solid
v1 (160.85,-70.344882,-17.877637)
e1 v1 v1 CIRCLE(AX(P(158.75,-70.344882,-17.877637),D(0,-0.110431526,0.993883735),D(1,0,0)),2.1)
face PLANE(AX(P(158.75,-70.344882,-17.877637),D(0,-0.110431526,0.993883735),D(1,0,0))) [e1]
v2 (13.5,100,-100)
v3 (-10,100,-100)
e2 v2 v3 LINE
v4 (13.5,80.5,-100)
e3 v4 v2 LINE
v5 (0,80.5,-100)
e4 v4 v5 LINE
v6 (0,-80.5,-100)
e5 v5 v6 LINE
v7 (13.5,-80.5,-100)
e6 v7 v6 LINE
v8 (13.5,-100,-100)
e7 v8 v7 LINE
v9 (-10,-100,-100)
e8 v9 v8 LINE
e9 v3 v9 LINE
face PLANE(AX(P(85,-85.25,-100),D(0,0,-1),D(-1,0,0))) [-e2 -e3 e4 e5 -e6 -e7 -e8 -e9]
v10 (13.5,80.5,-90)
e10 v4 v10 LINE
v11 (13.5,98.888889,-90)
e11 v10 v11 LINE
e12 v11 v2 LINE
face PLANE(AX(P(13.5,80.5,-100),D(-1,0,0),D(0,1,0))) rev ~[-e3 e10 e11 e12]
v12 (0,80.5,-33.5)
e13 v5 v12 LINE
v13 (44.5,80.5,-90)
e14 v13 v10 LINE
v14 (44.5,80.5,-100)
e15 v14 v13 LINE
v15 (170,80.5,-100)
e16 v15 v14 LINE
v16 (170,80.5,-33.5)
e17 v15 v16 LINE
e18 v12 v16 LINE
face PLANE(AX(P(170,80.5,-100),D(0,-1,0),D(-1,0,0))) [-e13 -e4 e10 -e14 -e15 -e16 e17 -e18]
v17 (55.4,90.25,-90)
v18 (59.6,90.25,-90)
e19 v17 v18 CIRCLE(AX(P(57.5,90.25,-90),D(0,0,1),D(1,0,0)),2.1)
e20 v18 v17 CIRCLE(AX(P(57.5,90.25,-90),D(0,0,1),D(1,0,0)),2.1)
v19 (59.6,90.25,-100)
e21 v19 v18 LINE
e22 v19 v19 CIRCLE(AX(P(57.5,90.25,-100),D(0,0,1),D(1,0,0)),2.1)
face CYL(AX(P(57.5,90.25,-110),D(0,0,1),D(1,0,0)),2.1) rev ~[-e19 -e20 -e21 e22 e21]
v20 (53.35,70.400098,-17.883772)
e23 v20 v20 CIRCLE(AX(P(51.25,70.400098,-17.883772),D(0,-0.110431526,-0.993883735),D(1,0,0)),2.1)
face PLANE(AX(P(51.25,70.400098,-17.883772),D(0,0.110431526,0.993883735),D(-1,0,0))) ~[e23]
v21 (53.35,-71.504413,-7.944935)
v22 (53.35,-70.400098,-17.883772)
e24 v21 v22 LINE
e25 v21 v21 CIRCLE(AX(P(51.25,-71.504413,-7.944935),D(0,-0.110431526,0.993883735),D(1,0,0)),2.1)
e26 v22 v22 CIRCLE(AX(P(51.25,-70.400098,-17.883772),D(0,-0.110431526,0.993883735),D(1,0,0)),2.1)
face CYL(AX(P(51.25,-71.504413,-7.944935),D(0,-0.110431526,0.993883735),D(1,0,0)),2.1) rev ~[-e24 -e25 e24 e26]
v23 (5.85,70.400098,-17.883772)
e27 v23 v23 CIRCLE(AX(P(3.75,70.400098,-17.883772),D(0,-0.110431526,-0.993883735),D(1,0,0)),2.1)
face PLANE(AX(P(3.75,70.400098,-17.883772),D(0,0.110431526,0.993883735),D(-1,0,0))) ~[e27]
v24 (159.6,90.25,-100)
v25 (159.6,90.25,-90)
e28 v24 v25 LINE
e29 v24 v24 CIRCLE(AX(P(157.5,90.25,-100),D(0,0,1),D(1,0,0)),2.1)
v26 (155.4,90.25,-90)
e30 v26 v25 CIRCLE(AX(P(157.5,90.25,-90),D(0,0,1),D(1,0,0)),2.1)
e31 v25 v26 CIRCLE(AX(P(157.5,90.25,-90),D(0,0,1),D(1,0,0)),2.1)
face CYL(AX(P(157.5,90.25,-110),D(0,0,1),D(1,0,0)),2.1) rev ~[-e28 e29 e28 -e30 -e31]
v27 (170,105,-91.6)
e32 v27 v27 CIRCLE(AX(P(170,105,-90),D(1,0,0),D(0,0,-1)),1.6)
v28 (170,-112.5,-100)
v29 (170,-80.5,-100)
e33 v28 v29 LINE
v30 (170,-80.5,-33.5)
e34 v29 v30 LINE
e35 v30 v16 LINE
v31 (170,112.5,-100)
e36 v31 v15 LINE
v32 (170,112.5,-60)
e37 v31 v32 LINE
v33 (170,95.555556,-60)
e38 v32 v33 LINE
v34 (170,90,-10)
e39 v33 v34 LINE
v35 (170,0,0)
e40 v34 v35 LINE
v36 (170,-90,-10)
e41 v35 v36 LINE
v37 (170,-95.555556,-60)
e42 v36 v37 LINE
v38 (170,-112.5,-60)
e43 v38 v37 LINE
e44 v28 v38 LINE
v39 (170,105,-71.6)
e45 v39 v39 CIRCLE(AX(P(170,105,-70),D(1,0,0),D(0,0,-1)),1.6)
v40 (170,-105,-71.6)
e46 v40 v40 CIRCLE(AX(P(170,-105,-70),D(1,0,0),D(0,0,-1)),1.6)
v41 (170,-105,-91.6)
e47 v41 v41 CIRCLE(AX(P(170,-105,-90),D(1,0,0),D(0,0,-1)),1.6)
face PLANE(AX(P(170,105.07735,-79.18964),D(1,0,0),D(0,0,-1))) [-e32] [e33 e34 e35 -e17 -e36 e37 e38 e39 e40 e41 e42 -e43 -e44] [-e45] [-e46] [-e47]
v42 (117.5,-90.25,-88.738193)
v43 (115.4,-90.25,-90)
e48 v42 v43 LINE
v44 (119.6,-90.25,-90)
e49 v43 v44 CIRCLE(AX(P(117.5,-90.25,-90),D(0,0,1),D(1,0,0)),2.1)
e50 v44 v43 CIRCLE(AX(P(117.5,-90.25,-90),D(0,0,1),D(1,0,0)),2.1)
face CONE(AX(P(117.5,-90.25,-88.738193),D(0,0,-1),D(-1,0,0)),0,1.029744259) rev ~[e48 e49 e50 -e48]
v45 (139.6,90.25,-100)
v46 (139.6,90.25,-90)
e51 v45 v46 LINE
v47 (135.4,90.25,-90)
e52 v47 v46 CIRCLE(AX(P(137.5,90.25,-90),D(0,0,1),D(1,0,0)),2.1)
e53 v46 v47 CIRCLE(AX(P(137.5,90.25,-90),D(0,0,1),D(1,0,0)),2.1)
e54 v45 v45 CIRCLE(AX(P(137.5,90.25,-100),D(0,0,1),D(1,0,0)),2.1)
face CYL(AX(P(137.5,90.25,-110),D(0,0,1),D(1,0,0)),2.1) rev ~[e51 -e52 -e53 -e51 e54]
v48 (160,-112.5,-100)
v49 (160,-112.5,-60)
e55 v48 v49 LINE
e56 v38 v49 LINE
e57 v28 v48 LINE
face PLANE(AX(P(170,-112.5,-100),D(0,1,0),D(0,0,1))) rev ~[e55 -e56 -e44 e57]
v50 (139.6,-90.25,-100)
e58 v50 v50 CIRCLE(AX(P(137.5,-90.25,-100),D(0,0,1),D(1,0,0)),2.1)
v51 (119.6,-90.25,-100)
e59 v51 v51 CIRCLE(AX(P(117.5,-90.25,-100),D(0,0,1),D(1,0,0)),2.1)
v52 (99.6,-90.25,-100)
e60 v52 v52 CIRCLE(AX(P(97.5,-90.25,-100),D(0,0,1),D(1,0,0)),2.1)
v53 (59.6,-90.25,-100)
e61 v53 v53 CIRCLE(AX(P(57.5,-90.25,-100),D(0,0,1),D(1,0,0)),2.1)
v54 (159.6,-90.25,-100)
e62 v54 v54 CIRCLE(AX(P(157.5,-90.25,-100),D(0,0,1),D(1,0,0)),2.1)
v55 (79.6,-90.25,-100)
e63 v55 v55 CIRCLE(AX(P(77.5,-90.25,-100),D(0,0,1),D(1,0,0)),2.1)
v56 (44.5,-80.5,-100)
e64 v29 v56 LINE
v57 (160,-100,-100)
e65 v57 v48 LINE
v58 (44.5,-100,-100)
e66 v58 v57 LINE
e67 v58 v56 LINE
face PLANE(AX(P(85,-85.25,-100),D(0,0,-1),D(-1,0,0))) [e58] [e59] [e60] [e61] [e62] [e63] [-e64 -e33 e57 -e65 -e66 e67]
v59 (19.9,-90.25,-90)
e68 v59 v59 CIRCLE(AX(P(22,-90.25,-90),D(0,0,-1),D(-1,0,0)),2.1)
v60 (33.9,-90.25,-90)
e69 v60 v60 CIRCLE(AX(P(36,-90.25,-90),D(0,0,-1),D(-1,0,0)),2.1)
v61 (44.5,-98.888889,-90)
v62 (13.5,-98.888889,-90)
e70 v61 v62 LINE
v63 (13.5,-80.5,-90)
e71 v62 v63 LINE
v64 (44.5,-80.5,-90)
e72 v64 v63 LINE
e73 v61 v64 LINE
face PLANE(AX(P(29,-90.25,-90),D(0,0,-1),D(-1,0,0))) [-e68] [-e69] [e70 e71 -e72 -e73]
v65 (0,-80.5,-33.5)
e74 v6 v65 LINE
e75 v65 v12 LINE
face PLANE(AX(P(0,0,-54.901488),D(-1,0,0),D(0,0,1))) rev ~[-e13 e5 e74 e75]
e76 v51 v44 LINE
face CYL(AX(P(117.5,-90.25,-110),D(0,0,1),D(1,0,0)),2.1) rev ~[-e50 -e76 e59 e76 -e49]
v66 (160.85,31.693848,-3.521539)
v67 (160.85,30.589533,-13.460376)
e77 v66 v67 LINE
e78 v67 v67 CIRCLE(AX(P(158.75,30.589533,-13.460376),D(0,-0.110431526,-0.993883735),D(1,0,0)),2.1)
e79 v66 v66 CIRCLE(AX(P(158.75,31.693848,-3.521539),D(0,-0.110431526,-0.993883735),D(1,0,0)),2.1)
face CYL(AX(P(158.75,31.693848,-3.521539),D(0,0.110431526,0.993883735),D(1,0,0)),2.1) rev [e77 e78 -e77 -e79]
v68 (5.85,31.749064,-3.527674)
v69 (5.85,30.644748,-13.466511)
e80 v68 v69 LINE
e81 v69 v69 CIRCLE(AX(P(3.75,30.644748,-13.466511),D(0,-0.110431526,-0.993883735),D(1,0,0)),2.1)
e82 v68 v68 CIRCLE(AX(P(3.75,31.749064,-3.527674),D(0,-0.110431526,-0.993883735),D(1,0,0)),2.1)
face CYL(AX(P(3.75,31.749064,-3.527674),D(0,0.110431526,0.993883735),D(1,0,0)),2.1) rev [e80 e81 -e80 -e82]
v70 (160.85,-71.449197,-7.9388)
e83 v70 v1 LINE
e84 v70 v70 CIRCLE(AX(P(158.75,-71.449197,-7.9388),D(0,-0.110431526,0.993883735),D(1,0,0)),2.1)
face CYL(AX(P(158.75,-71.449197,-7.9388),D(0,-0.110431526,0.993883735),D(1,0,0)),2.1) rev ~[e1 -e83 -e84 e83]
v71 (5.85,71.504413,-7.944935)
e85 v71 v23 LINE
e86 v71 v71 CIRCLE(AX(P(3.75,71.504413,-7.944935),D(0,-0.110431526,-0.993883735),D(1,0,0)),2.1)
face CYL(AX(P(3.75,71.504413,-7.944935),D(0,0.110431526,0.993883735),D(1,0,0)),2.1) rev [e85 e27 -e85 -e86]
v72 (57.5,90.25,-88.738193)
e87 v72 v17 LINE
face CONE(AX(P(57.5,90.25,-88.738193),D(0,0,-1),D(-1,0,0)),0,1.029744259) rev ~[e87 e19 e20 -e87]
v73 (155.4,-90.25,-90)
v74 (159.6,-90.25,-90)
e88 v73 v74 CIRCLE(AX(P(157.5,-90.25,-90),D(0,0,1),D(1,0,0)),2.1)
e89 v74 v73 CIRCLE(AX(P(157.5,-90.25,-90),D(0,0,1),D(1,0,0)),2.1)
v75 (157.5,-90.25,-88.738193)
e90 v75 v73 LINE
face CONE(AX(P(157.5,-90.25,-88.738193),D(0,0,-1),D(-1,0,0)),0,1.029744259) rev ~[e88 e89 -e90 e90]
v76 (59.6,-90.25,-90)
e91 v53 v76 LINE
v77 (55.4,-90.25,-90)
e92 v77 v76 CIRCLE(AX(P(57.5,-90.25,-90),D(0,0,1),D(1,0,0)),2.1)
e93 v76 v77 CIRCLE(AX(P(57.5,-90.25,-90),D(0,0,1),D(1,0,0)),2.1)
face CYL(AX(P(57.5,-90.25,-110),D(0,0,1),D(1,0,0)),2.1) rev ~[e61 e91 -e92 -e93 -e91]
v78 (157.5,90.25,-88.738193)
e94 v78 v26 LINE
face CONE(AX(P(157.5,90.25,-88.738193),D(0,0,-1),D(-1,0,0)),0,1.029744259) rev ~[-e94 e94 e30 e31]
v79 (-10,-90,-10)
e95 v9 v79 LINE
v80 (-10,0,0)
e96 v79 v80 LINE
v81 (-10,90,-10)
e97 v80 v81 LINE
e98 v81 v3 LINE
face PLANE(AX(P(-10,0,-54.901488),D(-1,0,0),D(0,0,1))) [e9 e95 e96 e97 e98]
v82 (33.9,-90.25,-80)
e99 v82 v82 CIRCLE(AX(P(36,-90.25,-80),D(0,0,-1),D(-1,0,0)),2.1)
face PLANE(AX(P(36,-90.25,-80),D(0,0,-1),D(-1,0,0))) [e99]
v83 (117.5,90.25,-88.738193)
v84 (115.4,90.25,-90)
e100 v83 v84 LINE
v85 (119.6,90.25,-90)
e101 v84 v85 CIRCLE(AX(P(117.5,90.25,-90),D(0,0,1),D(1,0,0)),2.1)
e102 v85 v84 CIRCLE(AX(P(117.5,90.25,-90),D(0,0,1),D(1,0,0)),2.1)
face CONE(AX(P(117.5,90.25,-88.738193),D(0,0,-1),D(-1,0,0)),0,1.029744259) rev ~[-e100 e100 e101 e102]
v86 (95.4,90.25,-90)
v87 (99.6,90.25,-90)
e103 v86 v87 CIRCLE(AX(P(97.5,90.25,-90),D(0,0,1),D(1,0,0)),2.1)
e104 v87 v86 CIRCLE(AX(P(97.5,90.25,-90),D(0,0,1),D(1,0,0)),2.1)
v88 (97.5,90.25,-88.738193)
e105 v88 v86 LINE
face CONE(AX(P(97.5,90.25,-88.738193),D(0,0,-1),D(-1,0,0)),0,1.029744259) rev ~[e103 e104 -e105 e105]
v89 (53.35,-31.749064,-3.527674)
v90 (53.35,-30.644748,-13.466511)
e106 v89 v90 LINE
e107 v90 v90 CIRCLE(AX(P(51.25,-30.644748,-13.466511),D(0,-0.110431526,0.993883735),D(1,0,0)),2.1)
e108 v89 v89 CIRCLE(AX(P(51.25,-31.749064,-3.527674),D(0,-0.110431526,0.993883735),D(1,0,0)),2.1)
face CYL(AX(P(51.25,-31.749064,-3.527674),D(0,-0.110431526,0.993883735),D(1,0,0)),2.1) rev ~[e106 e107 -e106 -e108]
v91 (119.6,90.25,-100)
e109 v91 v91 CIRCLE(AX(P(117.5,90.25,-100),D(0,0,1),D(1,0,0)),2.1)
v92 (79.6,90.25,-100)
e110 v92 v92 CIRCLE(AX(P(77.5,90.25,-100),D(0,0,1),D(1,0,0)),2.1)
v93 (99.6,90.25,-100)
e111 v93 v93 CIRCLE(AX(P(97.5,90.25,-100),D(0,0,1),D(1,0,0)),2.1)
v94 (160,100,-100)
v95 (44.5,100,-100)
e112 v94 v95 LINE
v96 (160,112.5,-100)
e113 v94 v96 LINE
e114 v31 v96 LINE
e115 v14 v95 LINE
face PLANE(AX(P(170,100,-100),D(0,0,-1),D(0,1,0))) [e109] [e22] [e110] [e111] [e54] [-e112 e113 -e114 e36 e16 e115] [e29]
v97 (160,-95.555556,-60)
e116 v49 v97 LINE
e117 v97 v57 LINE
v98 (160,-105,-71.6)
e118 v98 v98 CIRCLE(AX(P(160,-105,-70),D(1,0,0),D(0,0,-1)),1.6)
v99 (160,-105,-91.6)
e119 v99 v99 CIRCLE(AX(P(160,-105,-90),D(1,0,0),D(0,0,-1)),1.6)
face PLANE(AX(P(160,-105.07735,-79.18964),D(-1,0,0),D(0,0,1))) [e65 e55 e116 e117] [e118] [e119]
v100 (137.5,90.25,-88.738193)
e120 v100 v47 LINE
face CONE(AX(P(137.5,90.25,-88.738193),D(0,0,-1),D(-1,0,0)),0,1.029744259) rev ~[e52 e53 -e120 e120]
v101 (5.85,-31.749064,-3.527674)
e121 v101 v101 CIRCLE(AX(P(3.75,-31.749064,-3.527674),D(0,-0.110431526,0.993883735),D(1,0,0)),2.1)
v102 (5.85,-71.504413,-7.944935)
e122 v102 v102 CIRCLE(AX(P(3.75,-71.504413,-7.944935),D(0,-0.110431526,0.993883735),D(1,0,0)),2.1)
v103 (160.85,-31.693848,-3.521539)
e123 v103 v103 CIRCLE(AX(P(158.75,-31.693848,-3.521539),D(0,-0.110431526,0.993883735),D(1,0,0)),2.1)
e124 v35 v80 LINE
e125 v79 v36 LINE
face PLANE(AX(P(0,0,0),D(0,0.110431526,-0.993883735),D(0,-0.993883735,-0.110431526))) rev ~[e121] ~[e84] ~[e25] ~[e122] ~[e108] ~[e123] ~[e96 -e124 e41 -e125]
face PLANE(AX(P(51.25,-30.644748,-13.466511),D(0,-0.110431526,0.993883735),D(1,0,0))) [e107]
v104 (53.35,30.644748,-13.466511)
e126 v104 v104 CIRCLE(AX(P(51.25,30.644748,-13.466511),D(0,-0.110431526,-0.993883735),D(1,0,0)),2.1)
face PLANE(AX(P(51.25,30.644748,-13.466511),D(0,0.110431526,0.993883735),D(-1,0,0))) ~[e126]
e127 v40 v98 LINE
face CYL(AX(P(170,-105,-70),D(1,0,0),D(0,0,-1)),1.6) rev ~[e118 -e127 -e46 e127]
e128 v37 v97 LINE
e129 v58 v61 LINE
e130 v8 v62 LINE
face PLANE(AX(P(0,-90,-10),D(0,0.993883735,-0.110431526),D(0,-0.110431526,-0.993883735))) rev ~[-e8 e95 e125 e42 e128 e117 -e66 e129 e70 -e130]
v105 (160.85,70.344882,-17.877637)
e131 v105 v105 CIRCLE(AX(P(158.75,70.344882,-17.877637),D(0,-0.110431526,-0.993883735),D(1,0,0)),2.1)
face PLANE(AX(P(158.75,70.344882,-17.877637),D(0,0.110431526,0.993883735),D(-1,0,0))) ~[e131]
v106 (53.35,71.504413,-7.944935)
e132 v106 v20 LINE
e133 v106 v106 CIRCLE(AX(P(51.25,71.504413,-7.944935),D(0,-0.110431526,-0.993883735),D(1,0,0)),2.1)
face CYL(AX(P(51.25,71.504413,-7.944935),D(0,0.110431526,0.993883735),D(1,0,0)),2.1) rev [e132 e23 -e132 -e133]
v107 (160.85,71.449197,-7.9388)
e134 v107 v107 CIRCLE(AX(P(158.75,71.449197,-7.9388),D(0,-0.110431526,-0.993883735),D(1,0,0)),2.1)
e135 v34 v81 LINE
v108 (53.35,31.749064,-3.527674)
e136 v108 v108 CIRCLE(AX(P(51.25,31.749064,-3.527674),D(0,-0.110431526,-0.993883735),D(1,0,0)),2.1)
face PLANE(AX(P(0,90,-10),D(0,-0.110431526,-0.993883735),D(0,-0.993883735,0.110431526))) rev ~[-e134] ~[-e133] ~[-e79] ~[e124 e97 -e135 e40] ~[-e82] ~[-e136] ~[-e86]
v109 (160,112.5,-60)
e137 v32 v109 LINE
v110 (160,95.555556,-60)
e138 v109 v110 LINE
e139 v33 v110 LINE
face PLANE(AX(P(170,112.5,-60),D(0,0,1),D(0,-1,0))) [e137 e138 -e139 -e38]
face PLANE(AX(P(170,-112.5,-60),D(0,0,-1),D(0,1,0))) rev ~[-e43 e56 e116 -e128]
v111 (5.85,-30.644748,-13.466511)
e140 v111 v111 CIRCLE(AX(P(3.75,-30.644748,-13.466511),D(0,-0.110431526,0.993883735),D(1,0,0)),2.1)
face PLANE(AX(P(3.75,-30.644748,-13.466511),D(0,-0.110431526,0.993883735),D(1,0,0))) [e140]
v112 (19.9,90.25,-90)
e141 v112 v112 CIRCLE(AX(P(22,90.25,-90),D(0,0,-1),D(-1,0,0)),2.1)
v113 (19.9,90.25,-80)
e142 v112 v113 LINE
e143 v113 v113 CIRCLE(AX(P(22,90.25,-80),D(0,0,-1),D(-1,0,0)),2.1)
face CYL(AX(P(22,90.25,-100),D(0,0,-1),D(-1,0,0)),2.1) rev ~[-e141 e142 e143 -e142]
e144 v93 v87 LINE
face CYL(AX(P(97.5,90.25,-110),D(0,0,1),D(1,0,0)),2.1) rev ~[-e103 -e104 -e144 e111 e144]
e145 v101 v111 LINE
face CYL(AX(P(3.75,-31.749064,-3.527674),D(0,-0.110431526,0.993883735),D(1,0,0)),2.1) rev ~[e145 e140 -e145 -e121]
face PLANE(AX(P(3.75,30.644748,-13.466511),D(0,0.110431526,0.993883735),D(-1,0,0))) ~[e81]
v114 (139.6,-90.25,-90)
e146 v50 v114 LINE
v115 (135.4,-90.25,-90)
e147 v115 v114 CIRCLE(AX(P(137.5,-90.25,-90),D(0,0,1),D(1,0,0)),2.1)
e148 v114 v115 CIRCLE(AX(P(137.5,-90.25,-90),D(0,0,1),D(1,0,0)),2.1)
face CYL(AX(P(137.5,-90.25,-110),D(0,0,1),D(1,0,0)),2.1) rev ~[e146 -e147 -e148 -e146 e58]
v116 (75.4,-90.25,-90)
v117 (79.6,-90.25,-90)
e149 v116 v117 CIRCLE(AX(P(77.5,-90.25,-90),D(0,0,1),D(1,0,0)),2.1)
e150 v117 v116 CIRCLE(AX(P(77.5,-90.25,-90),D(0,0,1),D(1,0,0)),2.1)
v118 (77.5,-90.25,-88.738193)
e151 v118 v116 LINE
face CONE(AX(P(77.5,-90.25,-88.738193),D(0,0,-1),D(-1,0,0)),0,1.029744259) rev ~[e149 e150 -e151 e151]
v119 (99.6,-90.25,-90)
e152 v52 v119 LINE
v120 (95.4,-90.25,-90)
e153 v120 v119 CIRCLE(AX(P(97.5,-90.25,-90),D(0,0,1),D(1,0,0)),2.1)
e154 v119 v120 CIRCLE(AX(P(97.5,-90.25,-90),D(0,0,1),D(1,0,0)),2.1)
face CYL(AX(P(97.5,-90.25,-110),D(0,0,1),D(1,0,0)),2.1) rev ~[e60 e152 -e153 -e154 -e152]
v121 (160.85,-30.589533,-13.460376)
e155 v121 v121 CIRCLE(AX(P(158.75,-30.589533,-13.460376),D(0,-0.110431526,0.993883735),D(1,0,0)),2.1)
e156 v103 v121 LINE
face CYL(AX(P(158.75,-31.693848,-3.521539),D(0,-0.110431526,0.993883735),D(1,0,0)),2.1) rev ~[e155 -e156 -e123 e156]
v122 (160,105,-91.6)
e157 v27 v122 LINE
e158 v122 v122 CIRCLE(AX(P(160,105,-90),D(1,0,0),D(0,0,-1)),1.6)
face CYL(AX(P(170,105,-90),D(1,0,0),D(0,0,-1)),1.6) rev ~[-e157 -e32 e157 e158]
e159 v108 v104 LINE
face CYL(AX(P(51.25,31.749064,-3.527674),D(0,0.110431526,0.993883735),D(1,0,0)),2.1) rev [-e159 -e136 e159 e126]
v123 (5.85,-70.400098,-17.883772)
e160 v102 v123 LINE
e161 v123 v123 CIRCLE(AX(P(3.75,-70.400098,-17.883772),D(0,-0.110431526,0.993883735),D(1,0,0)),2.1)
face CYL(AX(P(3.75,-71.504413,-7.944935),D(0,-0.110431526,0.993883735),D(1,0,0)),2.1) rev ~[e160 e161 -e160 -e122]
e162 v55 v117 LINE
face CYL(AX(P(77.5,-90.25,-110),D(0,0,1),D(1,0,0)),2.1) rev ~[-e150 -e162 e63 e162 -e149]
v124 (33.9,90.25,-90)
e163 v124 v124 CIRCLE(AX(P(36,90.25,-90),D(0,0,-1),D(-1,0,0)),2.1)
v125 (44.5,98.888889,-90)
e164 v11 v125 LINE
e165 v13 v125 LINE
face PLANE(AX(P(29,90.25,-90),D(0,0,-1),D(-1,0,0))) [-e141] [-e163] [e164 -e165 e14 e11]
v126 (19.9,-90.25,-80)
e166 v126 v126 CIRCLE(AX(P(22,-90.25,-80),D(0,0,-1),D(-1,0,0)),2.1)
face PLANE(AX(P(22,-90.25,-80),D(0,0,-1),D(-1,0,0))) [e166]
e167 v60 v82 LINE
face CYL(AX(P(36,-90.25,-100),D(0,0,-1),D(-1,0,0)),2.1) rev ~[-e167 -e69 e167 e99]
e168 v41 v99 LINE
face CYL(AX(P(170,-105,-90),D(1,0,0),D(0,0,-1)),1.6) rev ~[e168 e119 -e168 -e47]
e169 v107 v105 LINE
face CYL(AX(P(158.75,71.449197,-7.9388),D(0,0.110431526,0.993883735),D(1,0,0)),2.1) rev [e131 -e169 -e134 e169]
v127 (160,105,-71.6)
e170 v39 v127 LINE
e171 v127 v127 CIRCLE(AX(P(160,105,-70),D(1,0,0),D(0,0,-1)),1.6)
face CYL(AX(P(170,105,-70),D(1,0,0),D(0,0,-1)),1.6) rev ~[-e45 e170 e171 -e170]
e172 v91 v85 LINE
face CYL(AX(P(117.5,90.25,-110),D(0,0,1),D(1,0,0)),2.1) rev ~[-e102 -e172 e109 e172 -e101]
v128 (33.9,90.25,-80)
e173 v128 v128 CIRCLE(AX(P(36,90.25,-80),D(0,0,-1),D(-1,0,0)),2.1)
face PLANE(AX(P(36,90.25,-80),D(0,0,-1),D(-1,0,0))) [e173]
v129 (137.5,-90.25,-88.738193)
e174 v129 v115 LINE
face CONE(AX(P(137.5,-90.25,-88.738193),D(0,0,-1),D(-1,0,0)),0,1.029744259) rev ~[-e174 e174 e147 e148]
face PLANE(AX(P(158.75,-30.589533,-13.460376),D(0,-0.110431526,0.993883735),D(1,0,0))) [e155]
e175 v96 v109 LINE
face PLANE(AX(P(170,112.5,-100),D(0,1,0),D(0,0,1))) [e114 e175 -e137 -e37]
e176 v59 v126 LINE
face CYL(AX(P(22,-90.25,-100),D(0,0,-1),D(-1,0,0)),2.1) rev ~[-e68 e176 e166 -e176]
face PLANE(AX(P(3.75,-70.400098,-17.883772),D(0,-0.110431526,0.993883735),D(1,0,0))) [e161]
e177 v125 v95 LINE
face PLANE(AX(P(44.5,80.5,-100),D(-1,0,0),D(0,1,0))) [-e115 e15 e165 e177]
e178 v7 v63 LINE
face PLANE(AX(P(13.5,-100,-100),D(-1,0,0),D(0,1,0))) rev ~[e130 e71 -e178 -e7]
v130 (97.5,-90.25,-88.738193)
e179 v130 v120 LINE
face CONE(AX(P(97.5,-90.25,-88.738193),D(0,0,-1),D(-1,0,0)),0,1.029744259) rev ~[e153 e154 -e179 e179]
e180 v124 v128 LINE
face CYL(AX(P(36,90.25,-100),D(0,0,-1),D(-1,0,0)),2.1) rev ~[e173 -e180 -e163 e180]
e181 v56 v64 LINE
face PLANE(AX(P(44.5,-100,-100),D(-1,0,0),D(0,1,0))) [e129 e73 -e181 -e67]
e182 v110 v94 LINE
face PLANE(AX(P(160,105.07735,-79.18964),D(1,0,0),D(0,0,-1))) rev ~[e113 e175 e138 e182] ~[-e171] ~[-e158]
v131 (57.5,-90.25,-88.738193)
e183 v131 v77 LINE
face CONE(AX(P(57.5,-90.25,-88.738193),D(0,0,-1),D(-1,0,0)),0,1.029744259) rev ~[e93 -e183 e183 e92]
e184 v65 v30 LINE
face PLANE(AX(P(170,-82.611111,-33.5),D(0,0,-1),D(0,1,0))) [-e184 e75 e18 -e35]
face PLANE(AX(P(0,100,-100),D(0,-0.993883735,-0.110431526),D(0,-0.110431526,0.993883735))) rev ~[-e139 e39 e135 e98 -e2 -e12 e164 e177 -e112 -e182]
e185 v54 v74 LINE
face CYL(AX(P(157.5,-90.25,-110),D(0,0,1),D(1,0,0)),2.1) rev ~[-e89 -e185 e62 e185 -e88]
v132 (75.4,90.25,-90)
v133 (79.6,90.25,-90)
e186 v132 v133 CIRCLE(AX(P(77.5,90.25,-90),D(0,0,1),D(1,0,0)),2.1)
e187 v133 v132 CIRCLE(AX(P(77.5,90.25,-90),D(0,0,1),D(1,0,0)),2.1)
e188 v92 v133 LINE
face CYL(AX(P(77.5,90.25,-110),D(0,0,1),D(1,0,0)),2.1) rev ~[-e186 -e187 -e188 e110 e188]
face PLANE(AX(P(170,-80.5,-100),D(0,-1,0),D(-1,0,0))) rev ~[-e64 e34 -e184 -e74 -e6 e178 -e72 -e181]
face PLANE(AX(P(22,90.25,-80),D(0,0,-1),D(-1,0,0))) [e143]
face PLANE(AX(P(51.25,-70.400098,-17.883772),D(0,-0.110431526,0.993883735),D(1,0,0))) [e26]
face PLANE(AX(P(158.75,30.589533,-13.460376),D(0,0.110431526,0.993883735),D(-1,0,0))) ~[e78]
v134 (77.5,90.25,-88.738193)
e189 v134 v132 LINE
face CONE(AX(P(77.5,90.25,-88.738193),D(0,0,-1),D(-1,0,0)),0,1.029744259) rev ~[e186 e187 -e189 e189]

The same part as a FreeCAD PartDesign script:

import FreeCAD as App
import Part
import Sketcher

doc = App.newDocument("Part")
params = doc.addObject("Spreadsheet::Sheet", "Params")
for row, (alias, value) in enumerate([
    ("sketch1_width", "200 mm"),
    ("pad1_length", "10 mm"),
    ("sketch2_width", "10 mm"),
    ("pad2_length", "170 mm"),
    ("sketch4_width", "170 mm"),
    ("sketch4_height", "9.5 mm"),
    ("pad4_length", "66.5 mm"),
    ("sketch5_width", "170 mm"),
    ("sketch5_height", "9.5 mm"),
    ("pad5_length", "66.5 mm"),
    ("sketch6_width", "31 mm"),
    ("sketch6_height", "19.5 mm"),
    ("pocket1_length", "10 mm"),
    ("sketch7_diameter", "4.2 mm"),
    ("pocket2_length", "20 mm"),
    ("sketch8_diameter", "4.2 mm"),
    ("hole_diameter", "4.2 mm"),
    ("hole_depth", "10 mm"),
    ("sketch9_diameter", "4.2 mm"),
    ("pocket3_length", "10 mm"),
    ("sketch10_height", "40 mm"),
    ("sketch10_width", "12.5 mm"),
    ("pad6_length", "10 mm"),
    ("sketch11_diameter", "3.2 mm"),
    ("sketch12_diameter", "3.2 mm"),
    ("sketch13_diameter", "3.2 mm"),
    ("sketch14_diameter", "3.2 mm"),
], start=1):
    params.set(f"A{row}", alias)
    params.set(f"B{row}", "=" + value)
    params.setAlias(f"B{row}", alias)

body = doc.addObject("PartDesign::Body", "Body")

sketch1 = body.newObject("Sketcher::SketchObject", "Sketch")
sketch1.AttachmentSupport = (doc.getObject("YZ_Plane"), [""])
sketch1.MapMode = "FlatFace"
sketch1.addGeometry([
    Part.LineSegment(App.Vector(90, -10, 0), App.Vector(0, 0, 0)),
    Part.LineSegment(App.Vector(0, 0, 0), App.Vector(-90, -10, 0)),
    Part.LineSegment(App.Vector(-90, -10, 0), App.Vector(-100, -100, 0)),
    Part.LineSegment(App.Vector(-100, -100, 0), App.Vector(100, -100, 0)),
    Part.LineSegment(App.Vector(100, -100, 0), App.Vector(90, -10, 0)),
], False)
sketch1.addConstraint([
    Sketcher.Constraint("Coincident", 0, 2, 1, 1),
    Sketcher.Constraint("Coincident", 1, 2, 2, 1),
    Sketcher.Constraint("Coincident", 2, 2, 3, 1),
    Sketcher.Constraint("Coincident", 3, 2, 4, 1),
    Sketcher.Constraint("Coincident", 4, 2, 0, 1),
    Sketcher.Constraint("Horizontal", 3),
    Sketcher.Constraint("Coincident", 0, 2, -1, 1),
    Sketcher.Constraint("Symmetric", 1, 2, 4, 2, -2),
    Sketcher.Constraint("Perpendicular", 0, 2),
    Sketcher.Constraint("Perpendicular", 1, 4),
    Sketcher.Constraint("Equal", 1, 2),
    Sketcher.Constraint("DistanceX", 3, 1, 3, 2, 200.0),
    Sketcher.Constraint("DistanceX", 1, 2, -1, 1, 90.0),
])
sketch1.setExpression("Constraints[11]", "Params.sketch1_width")
pad1 = body.newObject("PartDesign::Pad", "Pad")
pad1.Profile = sketch1
pad1.setExpression("Length", "Params.pad1_length")
pad1.Reversed = True

sketch2 = body.newObject("Sketcher::SketchObject", "Sketch001")
sketch2.AttachmentSupport = (doc.getObject("YZ_Plane"), [""])
sketch2.MapMode = "FlatFace"
sketch2.addGeometry([
    Part.LineSegment(App.Vector(0, 0, 0), App.Vector(-90, -10, 0)),
    Part.LineSegment(App.Vector(-90, -10, 0), App.Vector(-100, -100, 0)),
    Part.LineSegment(App.Vector(-100, -100, 0), App.Vector(-90, -100, 0)),
    Part.LineSegment(App.Vector(-90, -100, 0), App.Vector(-81, -19, 0)),
    Part.LineSegment(App.Vector(-81, -19, 0), App.Vector(0, -10, 0)),
    Part.LineSegment(App.Vector(0, -10, 0), App.Vector(81, -19, 0)),
    Part.LineSegment(App.Vector(81, -19, 0), App.Vector(90, -100, 0)),
    Part.LineSegment(App.Vector(90, -100, 0), App.Vector(100, -100, 0)),
    Part.LineSegment(App.Vector(100, -100, 0), App.Vector(90, -10, 0)),
    Part.LineSegment(App.Vector(90, -10, 0), App.Vector(0, 0, 0)),
], False)
sketch2.addConstraint([
    Sketcher.Constraint("Coincident", 0, 2, 1, 1),
    Sketcher.Constraint("Coincident", 1, 2, 2, 1),
    Sketcher.Constraint("Coincident", 2, 2, 3, 1),
    Sketcher.Constraint("Coincident", 3, 2, 4, 1),
    Sketcher.Constraint("Coincident", 4, 2, 5, 1),
    Sketcher.Constraint("Coincident", 5, 2, 6, 1),
    Sketcher.Constraint("Coincident", 6, 2, 7, 1),
    Sketcher.Constraint("Coincident", 7, 2, 8, 1),
    Sketcher.Constraint("Coincident", 8, 2, 9, 1),
    Sketcher.Constraint("Coincident", 9, 2, 0, 1),
    Sketcher.Constraint("Horizontal", 2),
    Sketcher.Constraint("Horizontal", 7),
    Sketcher.Constraint("Coincident", 9, 2, -1, 1),
    Sketcher.Constraint("Symmetric", 3, 2, 5, 2, -2),
    Sketcher.Constraint("Symmetric", 2, 2, 6, 2, -2),
    Sketcher.Constraint("Symmetric", 0, 2, 8, 2, -2),
    Sketcher.Constraint("PointOnObject", 4, 2, -2),
    Sketcher.Constraint("Parallel", 1, 3),
    Sketcher.Constraint("Parallel", 0, 4),
    Sketcher.Constraint("Perpendicular", 3, 5),
    Sketcher.Constraint("Parallel", 6, 8),
    Sketcher.Constraint("Horizontal", 0, 2, 4, 2),
    Sketcher.Constraint("Vertical", 0, 2, 2, 2),
    Sketcher.Constraint("Equal", 0, 1),
    Sketcher.Constraint("DistanceX", 2, 1, 2, 2, 10.0),
    Sketcher.Constraint("DistanceX", 0, 2, -1, 1, 90.0),
])
sketch2.setExpression("Constraints[24]", "Params.sketch2_width")
pad2 = body.newObject("PartDesign::Pad", "Pad001")
pad2.Profile = sketch2
pad2.setExpression("Length", "Params.pad2_length")

sketch3 = body.newObject("Sketcher::SketchObject", "Sketch002")
sketch3.AttachmentSupport = (doc.getObject("YZ_Plane"), [""])
sketch3.MapMode = "FlatFace"
sketch3.AttachmentOffset = App.Placement(App.Vector(0, 0, 170), App.Rotation())
sketch3.addGeometry([
    Part.LineSegment(App.Vector(81, -19, 0), App.Vector(0, -10, 0)),
    Part.LineSegment(App.Vector(0, -10, 0), App.Vector(-81, -19, 0)),
    Part.LineSegment(App.Vector(-81, -19, 0), App.Vector(-82.611111, -33.5, 0)),
    Part.LineSegment(App.Vector(-82.611111, -33.5, 0), App.Vector(82.611111, -33.5, 0)),
    Part.LineSegment(App.Vector(82.611111, -33.5, 0), App.Vector(81, -19, 0)),
], False)
sketch3.addConstraint([
    Sketcher.Constraint("Coincident", 0, 2, 1, 1),
    Sketcher.Constraint("Coincident", 1, 2, 2, 1),
    Sketcher.Constraint("Coincident", 2, 2, 3, 1),
    Sketcher.Constraint("Coincident", 3, 2, 4, 1),
    Sketcher.Constraint("Coincident", 4, 2, 0, 1),
    Sketcher.Constraint("Horizontal", 3),
    Sketcher.Constraint("Symmetric", 1, 2, 4, 2, -2),
    Sketcher.Constraint("PointOnObject", 0, 2, -2),
    Sketcher.Constraint("Perpendicular", 0, 2),
    Sketcher.Constraint("Perpendicular", 1, 4),
    Sketcher.Constraint("DistanceY", 0, 2, -1, 1, 10.0),
    Sketcher.Constraint("DistanceX", 1, 2, -1, 1, 81.0),
    Sketcher.Constraint("DistanceY", 1, 2, -1, 1, 19.0),
    Sketcher.Constraint("DistanceY", 2, 2, -1, 1, 33.5),
])
pad3 = body.newObject("PartDesign::Pad", "Pad002")
pad3.Profile = sketch3
pad3.Type = "UpToFirst"
pad3.Reversed = True

sketch4 = body.newObject("Sketcher::SketchObject", "Sketch003")
sketch4.AttachmentSupport = (doc.getObject("XY_Plane"), [""])
sketch4.MapMode = "FlatFace"
sketch4.AttachmentOffset = App.Placement(App.Vector(0, 0, -100), App.Rotation())
sketch4.addGeometry([
    Part.LineSegment(App.Vector(170, 90, 0), App.Vector(170, 80.5, 0)),
    Part.LineSegment(App.Vector(170, 80.5, 0), App.Vector(0, 80.5, 0)),
    Part.LineSegment(App.Vector(0, 80.5, 0), App.Vector(0, 90, 0)),
    Part.LineSegment(App.Vector(0, 90, 0), App.Vector(170, 90, 0)),
], False)
sketch4.addConstraint([
    Sketcher.Constraint("Coincident", 0, 2, 1, 1),
    Sketcher.Constraint("Coincident", 1, 2, 2, 1),
    Sketcher.Constraint("Coincident", 2, 2, 3, 1),
    Sketcher.Constraint("Coincident", 3, 2, 0, 1),
    Sketcher.Constraint("Vertical", 0),
    Sketcher.Constraint("Horizontal", 1),
    Sketcher.Constraint("Vertical", 2),
    Sketcher.Constraint("Horizontal", 3),
    Sketcher.Constraint("PointOnObject", 1, 2, -2),
    Sketcher.Constraint("DistanceX", 1, 2, 1, 1, 170.0),
    Sketcher.Constraint("DistanceY", 0, 2, 0, 1, 9.5),
    Sketcher.Constraint("DistanceY", -1, 1, 2, 2, 90.0),
])
sketch4.setExpression("Constraints[9]", "Params.sketch4_width")
sketch4.setExpression("Constraints[10]", "Params.sketch4_height")
pad4 = body.newObject("PartDesign::Pad", "Pad003")
pad4.Profile = sketch4
pad4.setExpression("Length", "Params.pad4_length")

sketch5 = body.newObject("Sketcher::SketchObject", "Sketch004")
sketch5.AttachmentSupport = (doc.getObject("XY_Plane"), [""])
sketch5.MapMode = "FlatFace"
sketch5.AttachmentOffset = App.Placement(App.Vector(0, 0, -100), App.Rotation())
sketch5.addGeometry([
    Part.LineSegment(App.Vector(170, -80.5, 0), App.Vector(170, -90, 0)),
    Part.LineSegment(App.Vector(170, -90, 0), App.Vector(0, -90, 0)),
    Part.LineSegment(App.Vector(0, -90, 0), App.Vector(0, -80.5, 0)),
    Part.LineSegment(App.Vector(0, -80.5, 0), App.Vector(170, -80.5, 0)),
], False)
sketch5.addConstraint([
    Sketcher.Constraint("Coincident", 0, 2, 1, 1),
    Sketcher.Constraint("Coincident", 1, 2, 2, 1),
    Sketcher.Constraint("Coincident", 2, 2, 3, 1),
    Sketcher.Constraint("Coincident", 3, 2, 0, 1),
    Sketcher.Constraint("Vertical", 0),
    Sketcher.Constraint("Horizontal", 1),
    Sketcher.Constraint("Vertical", 2),
    Sketcher.Constraint("Horizontal", 3),
    Sketcher.Constraint("PointOnObject", 1, 2, -2),
    Sketcher.Constraint("DistanceX", 1, 2, 1, 1, 170.0),
    Sketcher.Constraint("DistanceY", 0, 2, 0, 1, 9.5),
    Sketcher.Constraint("DistanceY", 0, 2, -1, 1, 90.0),
])
sketch5.setExpression("Constraints[9]", "Params.sketch5_width")
sketch5.setExpression("Constraints[10]", "Params.sketch5_height")
pad5 = body.newObject("PartDesign::Pad", "Pad004")
pad5.Profile = sketch5
pad5.setExpression("Length", "Params.pad5_length")

sketch6 = body.newObject("Sketcher::SketchObject", "Sketch005")
sketch6.AttachmentSupport = (doc.getObject("XY_Plane"), [""])
sketch6.MapMode = "FlatFace"
sketch6.AttachmentOffset = App.Placement(App.Vector(0, 0, -100), App.Rotation())
sketch6.addGeometry([
    Part.LineSegment(App.Vector(44.5, -80.5, 0), App.Vector(44.5, -100, 0)),
    Part.LineSegment(App.Vector(44.5, -100, 0), App.Vector(13.5, -100, 0)),
    Part.LineSegment(App.Vector(13.5, -100, 0), App.Vector(13.5, -80.5, 0)),
    Part.LineSegment(App.Vector(13.5, -80.5, 0), App.Vector(44.5, -80.5, 0)),
    Part.LineSegment(App.Vector(44.5, 100, 0), App.Vector(44.5, 80.5, 0)),
    Part.LineSegment(App.Vector(44.5, 80.5, 0), App.Vector(13.5, 80.5, 0)),
    Part.LineSegment(App.Vector(13.5, 80.5, 0), App.Vector(13.5, 100, 0)),
    Part.LineSegment(App.Vector(13.5, 100, 0), App.Vector(44.5, 100, 0)),
], False)
sketch6.addConstraint([
    Sketcher.Constraint("Coincident", 0, 2, 1, 1),
    Sketcher.Constraint("Coincident", 1, 2, 2, 1),
    Sketcher.Constraint("Coincident", 2, 2, 3, 1),
    Sketcher.Constraint("Coincident", 3, 2, 0, 1),
    Sketcher.Constraint("Coincident", 4, 2, 5, 1),
    Sketcher.Constraint("Coincident", 5, 2, 6, 1),
    Sketcher.Constraint("Coincident", 6, 2, 7, 1),
    Sketcher.Constraint("Coincident", 7, 2, 4, 1),
    Sketcher.Constraint("Vertical", 0),
    Sketcher.Constraint("Horizontal", 1),
    Sketcher.Constraint("Vertical", 2),
    Sketcher.Constraint("Horizontal", 3),
    Sketcher.Constraint("Vertical", 4),
    Sketcher.Constraint("Horizontal", 5),
    Sketcher.Constraint("Vertical", 6),
    Sketcher.Constraint("Horizontal", 7),
    Sketcher.Constraint("Symmetric", 3, 2, 4, 2, -1),
    Sketcher.Constraint("Symmetric", 1, 2, 6, 2, -1),
    Sketcher.Constraint("DistanceX", 1, 2, 1, 1, 31.0),
    Sketcher.Constraint("DistanceY", 0, 2, 0, 1, 19.5),
    Sketcher.Constraint("DistanceY", 0, 2, -1, 1, 100.0),
    Sketcher.Constraint("DistanceX", -1, 1, 0, 2, 44.5),
])
sketch6.setExpression("Constraints[18]", "Params.sketch6_width")
sketch6.setExpression("Constraints[19]", "Params.sketch6_height")
pocket1 = body.newObject("PartDesign::Pocket", "Pocket")
pocket1.Profile = sketch6
pocket1.setExpression("Length", "Params.pocket1_length")
pocket1.Reversed = True

sketch7 = body.newObject("Sketcher::SketchObject", "Sketch006")
sketch7.AttachmentSupport = (doc.getObject("XY_Plane"), [""])
sketch7.MapMode = "FlatFace"
sketch7.AttachmentOffset = App.Placement(App.Vector(0, 0, -100), App.Rotation())
sketch7.addGeometry([
    Part.Circle(App.Vector(22, -90.25, 0), App.Vector(0, 0, 1), 2.1),
    Part.Circle(App.Vector(22, 90.25, 0), App.Vector(0, 0, 1), 2.1),
    Part.Circle(App.Vector(36, -90.25, 0), App.Vector(0, 0, 1), 2.1),
    Part.Circle(App.Vector(36, 90.25, 0), App.Vector(0, 0, 1), 2.1),
], False)
sketch7.addConstraint([
    Sketcher.Constraint("Equal", 0, 1),
    Sketcher.Constraint("Equal", 1, 2),
    Sketcher.Constraint("Equal", 2, 3),
    Sketcher.Constraint("Symmetric", 0, 3, 1, 3, -1),
    Sketcher.Constraint("Symmetric", 2, 3, 3, 3, -1),
    Sketcher.Constraint("Horizontal", 0, 3, 2, 3),
    Sketcher.Constraint("Diameter", 0, 4.2),
    Sketcher.Constraint("DistanceX", -1, 1, 0, 3, 22.0),
    Sketcher.Constraint("DistanceX", -1, 1, 2, 3, 36.0),
    Sketcher.Constraint("DistanceY", 0, 3, 1, 3, 180.5),
])
sketch7.setExpression("Constraints[6]", "Params.sketch7_diameter")
pocket2 = body.newObject("PartDesign::Pocket", "Pocket001")
pocket2.Profile = sketch7
pocket2.setExpression("Length", "Params.pocket2_length")
pocket2.Reversed = True

sketch8 = body.newObject("Sketcher::SketchObject", "Sketch007")
sketch8.AttachmentSupport = (doc.getObject("XY_Plane"), [""])
sketch8.MapMode = "FlatFace"
sketch8.AttachmentOffset = App.Placement(App.Vector(0, 0, -100), App.Rotation())
sketch8.addGeometry([
    Part.Circle(App.Vector(157.5, 90.25, 0), App.Vector(0, 0, 1), 2.1),
    Part.Circle(App.Vector(137.5, 90.25, 0), App.Vector(0, 0, 1), 2.1),
    Part.Circle(App.Vector(117.5, 90.25, 0), App.Vector(0, 0, 1), 2.1),
    Part.Circle(App.Vector(97.5, 90.25, 0), App.Vector(0, 0, 1), 2.1),
    Part.Circle(App.Vector(77.5, 90.25, 0), App.Vector(0, 0, 1), 2.1),
    Part.Circle(App.Vector(57.5, 90.25, 0), App.Vector(0, 0, 1), 2.1),
    Part.Circle(App.Vector(157.5, -90.25, 0), App.Vector(0, 0, 1), 2.1),
    Part.Circle(App.Vector(137.5, -90.25, 0), App.Vector(0, 0, 1), 2.1),
    Part.Circle(App.Vector(117.5, -90.25, 0), App.Vector(0, 0, 1), 2.1),
    Part.Circle(App.Vector(97.5, -90.25, 0), App.Vector(0, 0, 1), 2.1),
    Part.Circle(App.Vector(77.5, -90.25, 0), App.Vector(0, 0, 1), 2.1),
    Part.Circle(App.Vector(57.5, -90.25, 0), App.Vector(0, 0, 1), 2.1),
], False)
sketch8.addConstraint([
    Sketcher.Constraint("Equal", 0, 1),
    Sketcher.Constraint("Equal", 1, 2),
    Sketcher.Constraint("Equal", 2, 3),
    Sketcher.Constraint("Equal", 3, 4),
    Sketcher.Constraint("Equal", 4, 5),
    Sketcher.Constraint("Equal", 5, 6),
    Sketcher.Constraint("Equal", 6, 7),
    Sketcher.Constraint("Equal", 7, 8),
    Sketcher.Constraint("Equal", 8, 9),
    Sketcher.Constraint("Equal", 9, 10),
    Sketcher.Constraint("Equal", 10, 11),
    Sketcher.Constraint("Symmetric", 0, 3, 6, 3, -1),
    Sketcher.Constraint("Symmetric", 1, 3, 7, 3, -1),
    Sketcher.Constraint("Symmetric", 2, 3, 8, 3, -1),
    Sketcher.Constraint("Symmetric", 3, 3, 9, 3, -1),
    Sketcher.Constraint("Symmetric", 4, 3, 10, 3, -1),
    Sketcher.Constraint("Symmetric", 5, 3, 11, 3, -1),
    Sketcher.Constraint("Horizontal", 0, 3, 1, 3),
    Sketcher.Constraint("Horizontal", 1, 3, 2, 3),
    Sketcher.Constraint("Horizontal", 2, 3, 3, 3),
    Sketcher.Constraint("Horizontal", 3, 3, 4, 3),
    Sketcher.Constraint("Horizontal", 4, 3, 5, 3),
    Sketcher.Constraint("Diameter", 0, 4.2),
    Sketcher.Constraint("DistanceX", 1, 3, 0, 3, 20.0),
    Sketcher.Constraint("DistanceX", 2, 3, 1, 3, 20.0),
    Sketcher.Constraint("DistanceX", 3, 3, 2, 3, 20.0),
    Sketcher.Constraint("DistanceX", 4, 3, 3, 3, 20.0),
    Sketcher.Constraint("DistanceX", 5, 3, 4, 3, 20.0),
    Sketcher.Constraint("DistanceX", -1, 1, 0, 3, 157.5),
    Sketcher.Constraint("DistanceY", 6, 3, 0, 3, 180.5),
])
sketch8.setExpression("Constraints[22]", "Params.sketch8_diameter")
doc.recompute()
hole = body.newObject("PartDesign::Hole", "Hole")
hole.Profile = sketch8
hole.ThreadType = "None"
hole.setExpression("Diameter", "Params.hole_diameter")
hole.DepthType = "Dimension"
hole.setExpression("Depth", "Params.hole_depth")
hole.DrillPoint = "Angled"
hole.DrillPointAngle = 118
hole.Reversed = True

sketch9 = body.newObject("Sketcher::SketchObject", "Sketch008")
sketch9.Placement = App.Placement(App.Vector(0, 0, 0), App.Rotation(App.Vector(1, 0, 0), App.Vector(0, 0.993883735, 0.110431526), App.Vector(0, -0.110431526, 0.993883735), "ZXY"))
sketch9.addGeometry([
    Part.Circle(App.Vector(3.75, -31.944444, 0), App.Vector(0, 0, 1), 2.1),
    Part.Circle(App.Vector(51.25, -31.944444, 0), App.Vector(0, 0, 1), 2.1),
    Part.Circle(App.Vector(3.75, -71.944444, 0), App.Vector(0, 0, 1), 2.1),
    Part.Circle(App.Vector(51.25, -71.944444, 0), App.Vector(0, 0, 1), 2.1),
    Part.Circle(App.Vector(158.75, -31.888889, 0), App.Vector(0, 0, 1), 2.1),
    Part.Circle(App.Vector(158.75, -71.888889, 0), App.Vector(0, 0, 1), 2.1),
], False)
sketch9.addConstraint([
    Sketcher.Constraint("Equal", 0, 1),
    Sketcher.Constraint("Equal", 1, 2),
    Sketcher.Constraint("Equal", 2, 3),
    Sketcher.Constraint("Equal", 3, 4),
    Sketcher.Constraint("Equal", 4, 5),
    Sketcher.Constraint("Horizontal", 0, 3, 1, 3),
    Sketcher.Constraint("Horizontal", 2, 3, 3, 3),
    Sketcher.Constraint("Vertical", 0, 3, 2, 3),
    Sketcher.Constraint("Vertical", 1, 3, 3, 3),
    Sketcher.Constraint("Vertical", 4, 3, 5, 3),
    Sketcher.Constraint("Diameter", 0, 4.2),
    Sketcher.Constraint("DistanceY", 2, 3, 0, 3, 40.0),
    Sketcher.Constraint("DistanceX", 0, 3, 4, 3, 155.0),
    Sketcher.Constraint("DistanceY", 5, 3, 4, 3, 40.0),
    Sketcher.Constraint("DistanceX", 0, 3, 1, 3, 47.5),
    Sketcher.Constraint("DistanceX", -1, 1, 0, 3, 3.75),
    Sketcher.Constraint("DistanceY", 4, 3, -1, 1, 31.888889),
    Sketcher.Constraint("DistanceY", 0, 3, -1, 1, 31.944444),
])
sketch9.setExpression("Constraints[10]", "Params.sketch9_diameter")
pocket3 = body.newObject("PartDesign::Pocket", "Pocket002")
pocket3.Profile = sketch9
pocket3.setExpression("Length", "Params.pocket3_length")
doc.recompute()

mirrored = body.newObject("PartDesign::Mirrored", "Mirrored")
mirrored.Originals = [pocket3]
mirrored.MirrorPlane = (doc.getObject("XZ_Plane"), [""])
body.Tip = mirrored

sketch10 = body.newObject("Sketcher::SketchObject", "Sketch009")
sketch10.AttachmentSupport = (doc.getObject("YZ_Plane"), [""])
sketch10.MapMode = "FlatFace"
sketch10.AttachmentOffset = App.Placement(App.Vector(0, 0, 170), App.Rotation())
sketch10.addGeometry([
    Part.LineSegment(App.Vector(95.555556, -60, 0), App.Vector(100, -100, 0)),
    Part.LineSegment(App.Vector(100, -100, 0), App.Vector(112.5, -100, 0)),
    Part.LineSegment(App.Vector(112.5, -100, 0), App.Vector(112.5, -60, 0)),
    Part.LineSegment(App.Vector(112.5, -60, 0), App.Vector(95.555556, -60, 0)),
    Part.LineSegment(App.Vector(-112.5, -100, 0), App.Vector(-100, -100, 0)),
    Part.LineSegment(App.Vector(-100, -100, 0), App.Vector(-95.555556, -60, 0)),
    Part.LineSegment(App.Vector(-95.555556, -60, 0), App.Vector(-112.5, -60, 0)),
    Part.LineSegment(App.Vector(-112.5, -60, 0), App.Vector(-112.5, -100, 0)),
], False)
sketch10.addConstraint([
    Sketcher.Constraint("Coincident", 0, 2, 1, 1),
    Sketcher.Constraint("Coincident", 1, 2, 2, 1),
    Sketcher.Constraint("Coincident", 2, 2, 3, 1),
    Sketcher.Constraint("Coincident", 3, 2, 0, 1),
    Sketcher.Constraint("Coincident", 4, 2, 5, 1),
    Sketcher.Constraint("Coincident", 5, 2, 6, 1),
    Sketcher.Constraint("Coincident", 6, 2, 7, 1),
    Sketcher.Constraint("Coincident", 7, 2, 4, 1),
    Sketcher.Constraint("Horizontal", 1),
    Sketcher.Constraint("Vertical", 2),
    Sketcher.Constraint("Horizontal", 3),
    Sketcher.Constraint("Horizontal", 4),
    Sketcher.Constraint("Horizontal", 6),
    Sketcher.Constraint("Vertical", 7),
    Sketcher.Constraint("Symmetric", 0, 2, 4, 2, -2),
    Sketcher.Constraint("Symmetric", 3, 2, 5, 2, -2),
    Sketcher.Constraint("Equal", 1, 4),
    Sketcher.Constraint("DistanceY", 2, 1, 2, 2, 40.0),
    Sketcher.Constraint("DistanceX", 1, 1, 1, 2, 12.5),
    Sketcher.Constraint("DistanceX", -1, 1, 0, 2, 100.0),
    Sketcher.Constraint("DistanceY", 0, 2, -1, 1, 100.0),
    Sketcher.Constraint("DistanceX", 3, 2, 3, 1, 16.944444),
])
sketch10.setExpression("Constraints[17]", "Params.sketch10_height")
sketch10.setExpression("Constraints[18]", "Params.sketch10_width")
pad6 = body.newObject("PartDesign::Pad", "Pad005")
pad6.Profile = sketch10
pad6.setExpression("Length", "Params.pad6_length")
pad6.Reversed = True

sketch11 = body.newObject("Sketcher::SketchObject", "Sketch010")
sketch11.AttachmentSupport = (doc.getObject("YZ_Plane"), [""])
sketch11.MapMode = "FlatFace"
sketch11.AttachmentOffset = App.Placement(App.Vector(0, 0, 170), App.Rotation())
sketch11.addGeometry(Part.Circle(App.Vector(-105, -70, 0), App.Vector(0, 0, 1), 1.6), False)
sketch11.addConstraint([
    Sketcher.Constraint("Diameter", 0, 3.2),
    Sketcher.Constraint("DistanceX", 0, 3, -1, 1, 105.0),
    Sketcher.Constraint("DistanceY", 0, 3, -1, 1, 70.0),
])
sketch11.setExpression("Constraints[0]", "Params.sketch11_diameter")
pocket4 = body.newObject("PartDesign::Pocket", "Pocket003")
pocket4.Profile = sketch11
pocket4.Type = "UpToFirst"

sketch12 = body.newObject("Sketcher::SketchObject", "Sketch011")
sketch12.AttachmentSupport = (doc.getObject("YZ_Plane"), [""])
sketch12.MapMode = "FlatFace"
sketch12.AttachmentOffset = App.Placement(App.Vector(0, 0, 170), App.Rotation())
sketch12.addGeometry(Part.Circle(App.Vector(-105, -90, 0), App.Vector(0, 0, 1), 1.6), False)
sketch12.addConstraint([
    Sketcher.Constraint("Diameter", 0, 3.2),
    Sketcher.Constraint("DistanceX", 0, 3, -1, 1, 105.0),
    Sketcher.Constraint("DistanceY", 0, 3, -1, 1, 90.0),
])
sketch12.setExpression("Constraints[0]", "Params.sketch12_diameter")
pocket5 = body.newObject("PartDesign::Pocket", "Pocket004")
pocket5.Profile = sketch12
pocket5.Type = "UpToFirst"

sketch13 = body.newObject("Sketcher::SketchObject", "Sketch012")
sketch13.AttachmentSupport = (doc.getObject("YZ_Plane"), [""])
sketch13.MapMode = "FlatFace"
sketch13.AttachmentOffset = App.Placement(App.Vector(0, 0, 170), App.Rotation())
sketch13.addGeometry(Part.Circle(App.Vector(105, -90, 0), App.Vector(0, 0, 1), 1.6), False)
sketch13.addConstraint([
    Sketcher.Constraint("Diameter", 0, 3.2),
    Sketcher.Constraint("DistanceX", -1, 1, 0, 3, 105.0),
    Sketcher.Constraint("DistanceY", 0, 3, -1, 1, 90.0),
])
sketch13.setExpression("Constraints[0]", "Params.sketch13_diameter")
pocket6 = body.newObject("PartDesign::Pocket", "Pocket005")
pocket6.Profile = sketch13
pocket6.Type = "UpToFirst"

sketch14 = body.newObject("Sketcher::SketchObject", "Sketch013")
sketch14.AttachmentSupport = (doc.getObject("YZ_Plane"), [""])
sketch14.MapMode = "FlatFace"
sketch14.AttachmentOffset = App.Placement(App.Vector(0, 0, 170), App.Rotation())
sketch14.addGeometry(Part.Circle(App.Vector(105, -70, 0), App.Vector(0, 0, 1), 1.6), False)
sketch14.addConstraint([
    Sketcher.Constraint("Diameter", 0, 3.2),
    Sketcher.Constraint("DistanceX", -1, 1, 0, 3, 105.0),
    Sketcher.Constraint("DistanceY", 0, 3, -1, 1, 70.0),
])
sketch14.setExpression("Constraints[0]", "Params.sketch14_diameter")
pocket7 = body.newObject("PartDesign::Pocket", "Pocket006")
pocket7.Profile = sketch14
pocket7.Type = "UpToFirst"

doc.recompute()
